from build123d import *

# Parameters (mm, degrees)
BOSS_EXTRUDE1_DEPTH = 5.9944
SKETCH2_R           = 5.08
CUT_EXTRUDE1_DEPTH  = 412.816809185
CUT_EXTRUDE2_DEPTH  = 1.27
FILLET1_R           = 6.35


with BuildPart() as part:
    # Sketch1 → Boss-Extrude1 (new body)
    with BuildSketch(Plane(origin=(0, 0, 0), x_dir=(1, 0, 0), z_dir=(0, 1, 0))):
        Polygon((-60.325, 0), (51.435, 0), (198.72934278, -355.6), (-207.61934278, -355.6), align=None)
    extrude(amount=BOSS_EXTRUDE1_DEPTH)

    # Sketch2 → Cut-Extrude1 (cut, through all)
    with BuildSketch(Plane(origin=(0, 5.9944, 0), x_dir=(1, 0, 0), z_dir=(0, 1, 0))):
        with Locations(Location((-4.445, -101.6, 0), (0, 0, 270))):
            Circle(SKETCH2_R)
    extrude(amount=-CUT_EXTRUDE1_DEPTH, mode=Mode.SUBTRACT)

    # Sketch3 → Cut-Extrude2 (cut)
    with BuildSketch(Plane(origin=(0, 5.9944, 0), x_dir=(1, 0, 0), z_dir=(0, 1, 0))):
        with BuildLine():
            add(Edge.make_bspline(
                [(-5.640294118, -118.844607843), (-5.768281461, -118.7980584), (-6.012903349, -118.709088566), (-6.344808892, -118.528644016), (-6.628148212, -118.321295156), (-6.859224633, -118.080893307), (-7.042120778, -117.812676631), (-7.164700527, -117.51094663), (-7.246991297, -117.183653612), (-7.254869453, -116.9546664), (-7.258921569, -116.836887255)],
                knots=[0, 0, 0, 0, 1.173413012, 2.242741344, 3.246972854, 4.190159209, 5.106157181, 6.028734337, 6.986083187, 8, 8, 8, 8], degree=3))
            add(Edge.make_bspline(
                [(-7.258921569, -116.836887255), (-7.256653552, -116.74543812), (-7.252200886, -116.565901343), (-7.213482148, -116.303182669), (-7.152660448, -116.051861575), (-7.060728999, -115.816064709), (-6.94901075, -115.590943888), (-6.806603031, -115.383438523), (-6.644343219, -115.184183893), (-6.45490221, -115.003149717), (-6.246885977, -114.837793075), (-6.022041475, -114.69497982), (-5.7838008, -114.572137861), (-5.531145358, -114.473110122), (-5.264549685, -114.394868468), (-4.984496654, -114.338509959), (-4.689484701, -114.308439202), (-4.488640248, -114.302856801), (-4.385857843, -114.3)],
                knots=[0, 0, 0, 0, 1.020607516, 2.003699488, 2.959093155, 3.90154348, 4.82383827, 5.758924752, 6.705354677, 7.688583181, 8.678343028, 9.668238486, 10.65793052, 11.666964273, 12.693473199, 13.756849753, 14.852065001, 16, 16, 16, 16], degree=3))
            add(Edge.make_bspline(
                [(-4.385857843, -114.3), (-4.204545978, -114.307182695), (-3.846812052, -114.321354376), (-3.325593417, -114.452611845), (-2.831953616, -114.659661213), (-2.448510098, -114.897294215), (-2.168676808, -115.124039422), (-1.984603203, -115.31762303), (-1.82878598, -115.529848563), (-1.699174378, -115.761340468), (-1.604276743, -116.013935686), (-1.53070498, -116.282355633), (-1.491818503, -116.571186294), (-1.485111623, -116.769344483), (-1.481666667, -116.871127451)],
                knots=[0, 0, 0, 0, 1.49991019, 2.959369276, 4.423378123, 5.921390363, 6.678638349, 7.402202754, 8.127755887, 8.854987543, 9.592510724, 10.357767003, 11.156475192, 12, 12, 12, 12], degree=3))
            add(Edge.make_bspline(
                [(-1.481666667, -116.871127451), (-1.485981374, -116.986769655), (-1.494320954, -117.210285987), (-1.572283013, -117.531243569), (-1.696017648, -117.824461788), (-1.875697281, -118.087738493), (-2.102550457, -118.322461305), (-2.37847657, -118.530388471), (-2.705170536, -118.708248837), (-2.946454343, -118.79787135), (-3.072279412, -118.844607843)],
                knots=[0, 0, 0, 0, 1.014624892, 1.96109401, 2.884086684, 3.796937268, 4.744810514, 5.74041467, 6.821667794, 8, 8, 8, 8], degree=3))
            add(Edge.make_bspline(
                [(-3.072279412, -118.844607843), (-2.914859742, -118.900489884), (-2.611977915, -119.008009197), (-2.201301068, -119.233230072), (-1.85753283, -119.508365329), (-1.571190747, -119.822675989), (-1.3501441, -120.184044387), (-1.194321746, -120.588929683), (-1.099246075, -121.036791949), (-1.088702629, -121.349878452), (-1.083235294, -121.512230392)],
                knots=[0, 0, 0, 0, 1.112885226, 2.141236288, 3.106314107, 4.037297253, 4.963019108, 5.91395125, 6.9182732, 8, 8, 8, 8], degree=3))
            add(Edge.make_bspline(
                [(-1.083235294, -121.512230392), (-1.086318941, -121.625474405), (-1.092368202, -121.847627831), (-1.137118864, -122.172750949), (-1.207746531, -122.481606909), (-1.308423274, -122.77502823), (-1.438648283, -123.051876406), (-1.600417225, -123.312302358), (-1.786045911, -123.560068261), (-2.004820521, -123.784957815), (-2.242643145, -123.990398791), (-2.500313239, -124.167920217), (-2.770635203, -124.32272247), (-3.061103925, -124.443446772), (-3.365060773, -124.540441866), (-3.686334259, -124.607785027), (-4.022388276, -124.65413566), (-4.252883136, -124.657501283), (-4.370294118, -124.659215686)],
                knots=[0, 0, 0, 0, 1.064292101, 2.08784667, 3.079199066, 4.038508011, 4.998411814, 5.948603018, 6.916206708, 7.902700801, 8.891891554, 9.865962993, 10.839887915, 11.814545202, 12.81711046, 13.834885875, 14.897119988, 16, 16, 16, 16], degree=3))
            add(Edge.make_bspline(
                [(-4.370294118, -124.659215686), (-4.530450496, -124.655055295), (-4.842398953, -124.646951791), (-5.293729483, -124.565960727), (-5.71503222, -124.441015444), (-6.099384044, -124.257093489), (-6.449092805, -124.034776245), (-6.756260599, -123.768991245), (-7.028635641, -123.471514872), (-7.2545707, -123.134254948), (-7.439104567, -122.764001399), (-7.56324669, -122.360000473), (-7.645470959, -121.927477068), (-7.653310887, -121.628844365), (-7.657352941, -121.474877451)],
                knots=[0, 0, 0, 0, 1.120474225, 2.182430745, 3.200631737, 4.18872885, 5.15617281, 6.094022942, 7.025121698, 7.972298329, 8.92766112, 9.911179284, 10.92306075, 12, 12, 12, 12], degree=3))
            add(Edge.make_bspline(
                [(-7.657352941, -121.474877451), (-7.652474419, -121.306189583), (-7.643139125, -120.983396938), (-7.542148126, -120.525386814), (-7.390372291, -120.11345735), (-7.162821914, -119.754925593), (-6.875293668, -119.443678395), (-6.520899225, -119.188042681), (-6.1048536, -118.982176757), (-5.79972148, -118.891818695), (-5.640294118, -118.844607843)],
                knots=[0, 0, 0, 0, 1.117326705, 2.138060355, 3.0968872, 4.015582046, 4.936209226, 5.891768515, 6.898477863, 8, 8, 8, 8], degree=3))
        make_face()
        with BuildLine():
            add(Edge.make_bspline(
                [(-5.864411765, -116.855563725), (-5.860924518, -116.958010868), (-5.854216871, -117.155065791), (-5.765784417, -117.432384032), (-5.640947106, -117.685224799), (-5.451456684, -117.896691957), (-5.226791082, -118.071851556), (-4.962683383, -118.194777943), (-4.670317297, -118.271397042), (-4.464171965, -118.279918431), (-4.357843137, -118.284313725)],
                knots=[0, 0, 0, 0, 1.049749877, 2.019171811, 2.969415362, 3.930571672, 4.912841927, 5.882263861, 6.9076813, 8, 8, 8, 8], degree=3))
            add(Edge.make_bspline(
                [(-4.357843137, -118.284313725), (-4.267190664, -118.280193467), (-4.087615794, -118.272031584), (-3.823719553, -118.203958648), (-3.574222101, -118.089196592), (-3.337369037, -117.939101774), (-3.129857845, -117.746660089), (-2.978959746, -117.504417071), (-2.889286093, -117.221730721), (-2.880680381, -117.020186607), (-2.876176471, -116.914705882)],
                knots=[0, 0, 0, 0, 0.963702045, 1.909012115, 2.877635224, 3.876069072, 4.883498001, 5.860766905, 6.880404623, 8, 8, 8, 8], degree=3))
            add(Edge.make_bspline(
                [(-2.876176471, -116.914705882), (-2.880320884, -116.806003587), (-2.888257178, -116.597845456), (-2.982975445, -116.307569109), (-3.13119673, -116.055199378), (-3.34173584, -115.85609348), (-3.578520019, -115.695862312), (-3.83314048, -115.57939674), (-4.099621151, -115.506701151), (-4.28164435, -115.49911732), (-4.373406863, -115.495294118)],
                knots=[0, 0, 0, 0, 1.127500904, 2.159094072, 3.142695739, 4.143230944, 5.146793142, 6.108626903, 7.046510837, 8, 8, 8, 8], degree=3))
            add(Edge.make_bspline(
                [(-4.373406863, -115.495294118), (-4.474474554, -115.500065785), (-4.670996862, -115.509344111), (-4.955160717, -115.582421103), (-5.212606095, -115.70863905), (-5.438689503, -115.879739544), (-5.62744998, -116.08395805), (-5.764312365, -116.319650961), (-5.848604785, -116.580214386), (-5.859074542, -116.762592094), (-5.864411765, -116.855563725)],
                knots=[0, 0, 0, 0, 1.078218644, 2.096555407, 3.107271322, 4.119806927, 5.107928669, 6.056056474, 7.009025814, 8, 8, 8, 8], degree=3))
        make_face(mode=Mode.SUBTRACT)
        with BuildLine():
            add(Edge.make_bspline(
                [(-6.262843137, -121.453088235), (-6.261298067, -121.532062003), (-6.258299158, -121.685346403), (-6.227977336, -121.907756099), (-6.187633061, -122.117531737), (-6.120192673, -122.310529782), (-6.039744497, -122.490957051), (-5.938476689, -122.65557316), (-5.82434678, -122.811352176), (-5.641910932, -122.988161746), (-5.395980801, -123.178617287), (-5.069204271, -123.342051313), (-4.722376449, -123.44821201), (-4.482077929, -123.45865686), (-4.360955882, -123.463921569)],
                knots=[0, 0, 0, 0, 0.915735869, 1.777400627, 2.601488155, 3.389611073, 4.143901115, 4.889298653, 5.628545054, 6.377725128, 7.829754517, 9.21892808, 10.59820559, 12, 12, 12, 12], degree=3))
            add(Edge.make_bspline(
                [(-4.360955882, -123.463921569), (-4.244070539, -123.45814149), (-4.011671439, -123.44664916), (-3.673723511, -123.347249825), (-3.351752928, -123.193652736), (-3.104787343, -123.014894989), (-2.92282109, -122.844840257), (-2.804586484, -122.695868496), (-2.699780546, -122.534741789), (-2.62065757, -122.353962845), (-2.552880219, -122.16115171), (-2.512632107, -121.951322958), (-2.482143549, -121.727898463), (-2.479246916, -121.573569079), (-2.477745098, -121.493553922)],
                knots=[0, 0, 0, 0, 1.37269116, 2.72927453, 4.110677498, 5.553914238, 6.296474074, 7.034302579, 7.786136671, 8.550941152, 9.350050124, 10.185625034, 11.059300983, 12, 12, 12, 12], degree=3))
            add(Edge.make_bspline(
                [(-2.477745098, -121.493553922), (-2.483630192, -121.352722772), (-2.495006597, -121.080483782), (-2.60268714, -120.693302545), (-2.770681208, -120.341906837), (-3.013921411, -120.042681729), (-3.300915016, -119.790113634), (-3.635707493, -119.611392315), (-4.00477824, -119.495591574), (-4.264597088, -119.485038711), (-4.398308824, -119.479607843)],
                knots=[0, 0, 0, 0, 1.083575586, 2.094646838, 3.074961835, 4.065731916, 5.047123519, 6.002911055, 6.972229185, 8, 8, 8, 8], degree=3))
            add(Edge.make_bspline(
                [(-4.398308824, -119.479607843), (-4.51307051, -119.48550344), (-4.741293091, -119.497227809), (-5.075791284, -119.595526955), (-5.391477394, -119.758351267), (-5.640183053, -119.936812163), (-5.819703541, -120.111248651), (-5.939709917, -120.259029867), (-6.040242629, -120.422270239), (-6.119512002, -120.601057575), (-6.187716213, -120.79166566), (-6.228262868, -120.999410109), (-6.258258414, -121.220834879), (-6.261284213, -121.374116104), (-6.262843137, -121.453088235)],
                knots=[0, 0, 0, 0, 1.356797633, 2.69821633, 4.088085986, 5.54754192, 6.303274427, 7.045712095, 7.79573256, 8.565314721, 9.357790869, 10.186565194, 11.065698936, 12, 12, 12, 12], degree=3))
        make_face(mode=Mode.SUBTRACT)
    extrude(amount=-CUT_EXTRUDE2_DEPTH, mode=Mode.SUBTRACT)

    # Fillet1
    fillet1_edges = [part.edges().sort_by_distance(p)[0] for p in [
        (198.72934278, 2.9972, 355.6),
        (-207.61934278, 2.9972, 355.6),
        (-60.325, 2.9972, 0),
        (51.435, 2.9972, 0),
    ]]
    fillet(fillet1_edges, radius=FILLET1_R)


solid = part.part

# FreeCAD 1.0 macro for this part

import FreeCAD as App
import Part
import Sketcher

V = App.Vector
Q = App.Units.Quantity


def edges_at(feature, points):
    """Names of the edges that pass closest to the given points."""
    edges = feature.Shape.Edges
    near = lambda p: min(range(len(edges)), key=lambda i: edges[i].distToShape(Part.Vertex(*p))[0])
    return sorted({f"Edge{near(p) + 1}" for p in points})


def add_polygon(sketch, points):
    """Adds a closed chain of lines whose ends are joined by coincident constraints."""
    first, n = sketch.GeometryCount, len(points)
    for a, b in zip(points, points[1:] + points[:1]):
        sketch.addGeometry(Part.LineSegment(App.Vector(*a, 0), App.Vector(*b, 0)), False)
    for i in range(n):
        sketch.addConstraint(Sketcher.Constraint("Coincident", first + i, 2, first + (i + 1) % n, 1))

doc = App.newDocument("Part")
params = doc.addObject("Spreadsheet::Sheet", "Params")
for row, (alias, value) in enumerate([
    ("sketch1_width", "4.4 in"),
    ("pad1_length", "0.236 in"),
    ("sketch2_diameter", "0.4 in"),
    ("pocket2_length", "0.05 in"),
    ("fillet_radius", "0.25 in"),
], start=1):
    params.set(f"A{row}", alias)
    params.set(f"B{row}", "=" + value)
    params.setAlias(f"B{row}", alias)

body = doc.addObject("PartDesign::Body", "Body")

# Sketch on XZ plane
sketch1 = body.newObject("Sketcher::SketchObject", "Sketch")
sketch1.AttachmentSupport = (doc.getObject("XZ_Plane"), [""])
sketch1.MapMode = "FlatFace"
add_polygon(sketch1, [(51, 0), (-60, 0), (-208, 356), (199, 356)])  # lines 0-3
sketch1.addConstraint(Sketcher.Constraint("Horizontal", 0))
sketch1.addConstraint(Sketcher.Constraint("Horizontal", 2))
sketch1.addConstraint(Sketcher.Constraint("PointOnObject", 0, 2, -1))
sketch1.addConstraint(Sketcher.Constraint("Equal", 1, 3))
sketch1.addConstraint(Sketcher.Constraint("DistanceX", 0, 2, 0, 1, Q("4.4 in")))
sketch1.addConstraint(Sketcher.Constraint("DistanceY", -1, 1, 1, 2, Q("14 in")))
sketch1.addConstraint(Sketcher.Constraint("Angle", 1, Q("112.5 deg")))
sketch1.addConstraint(Sketcher.Constraint("DistanceX", 0, 2, -1, 1, Q("2.375 in")))
sketch1.setExpression("Constraints[8]", "Params.sketch1_width")
pad1 = body.newObject("PartDesign::Pad", "Pad")
pad1.Profile = sketch1
pad1.setExpression("Length", "Params.pad1_length")
pad1.Reversed = True

# Sketch on XZ plane
sketch2 = body.newObject("Sketcher::SketchObject", "Sketch001")
sketch2.AttachmentSupport = (doc.getObject("XZ_Plane"), [""])
sketch2.MapMode = "FlatFace"
sketch2.AttachmentOffset = App.Placement(V(0, 0, -0.236 * 25.4), App.Rotation())
sketch2.addGeometry(Part.Circle(V(-4, 102, 0), V(0, 0, 1), 5), False)
sketch2.addConstraint(Sketcher.Constraint("Diameter", 0, Q("0.4 in")))
sketch2.addConstraint(Sketcher.Constraint("DistanceY", -1, 1, 0, 3, Q("4 in")))
sketch2.addConstraint(Sketcher.Constraint("DistanceX", 0, 3, -1, 1, Q("0.175 in")))
sketch2.setExpression("Constraints[0]", "Params.sketch2_diameter")
pocket1 = body.newObject("PartDesign::Pocket", "Pocket")
pocket1.Profile = sketch2
pocket1.Type = "ThroughAll"
pocket1.Reversed = True

# Sketch on XZ plane
sketch3 = body.newObject("Sketcher::SketchObject", "Sketch002")
sketch3.AttachmentSupport = (doc.getObject("XZ_Plane"), [""])
sketch3.MapMode = "FlatFace"
sketch3.AttachmentOffset = App.Placement(V(0, 0, -0.236 * 25.4), App.Rotation())
sketch3.addGeometry(Part.BSplineCurve([V(-5.640294, 118.844608, 0), V(-5.768281, 118.798058, 0), V(-6.012903, 118.709089, 0), V(-6.344809, 118.528644, 0), V(-6.628148, 118.321295, 0), V(-6.859225, 118.080893, 0), V(-7.042121, 117.812677, 0), V(-7.164701, 117.510947, 0), V(-7.246991, 117.183654, 0), V(-7.254869, 116.954666, 0), V(-7.258922, 116.836887, 0)], [4, 1, 1, 1, 1, 1, 1, 1, 4], [0, 1.173413012, 2.242741344, 3.246972854, 4.190159209, 5.106157181, 6.028734337, 6.986083187, 8], False, 3, [1, 1, 1, 1, 1, 1, 1, 1, 1, 1, 1], False), False)
sketch3.addGeometry(Part.BSplineCurve([V(-7.657353, 121.474877, 0), V(-7.652474, 121.30619, 0), V(-7.643139, 120.983397, 0), V(-7.542148, 120.525387, 0), V(-7.390372, 120.113457, 0), V(-7.162822, 119.754926, 0), V(-6.875294, 119.443678, 0), V(-6.520899, 119.188043, 0), V(-6.104854, 118.982177, 0), V(-5.799721, 118.891819, 0), V(-5.640294, 118.844608, 0)], [4, 1, 1, 1, 1, 1, 1, 1, 4], [0, 1.117326705, 2.138060355, 3.0968872, 4.015582046, 4.936209226, 5.891768515, 6.898477863, 8], False, 3, [1, 1, 1, 1, 1, 1, 1, 1, 1, 1, 1], False), False)
sketch3.addGeometry(Part.BSplineCurve([V(-4.370294, 124.659216, 0), V(-4.53045, 124.655055, 0), V(-4.842399, 124.646952, 0), V(-5.293729, 124.565961, 0), V(-5.715032, 124.441015, 0), V(-6.099384, 124.257093, 0), V(-6.449093, 124.034776, 0), V(-6.756261, 123.768991, 0), V(-7.028636, 123.471515, 0), V(-7.254571, 123.134255, 0), V(-7.439105, 122.764001, 0), V(-7.563247, 122.36, 0), V(-7.645471, 121.927477, 0), V(-7.653311, 121.628844, 0), V(-7.657353, 121.474877, 0)], [4, 1, 1, 1, 1, 1, 1, 1, 1, 1, 1, 1, 4], [0, 1.120474225, 2.182430745, 3.200631737, 4.18872885, 5.15617281, 6.094022942, 7.025121698, 7.972298329, 8.92766112, 9.911179284, 10.92306075, 12], False, 3, [1, 1, 1, 1, 1, 1, 1, 1, 1, 1, 1, 1, 1, 1, 1], False), False)
sketch3.addGeometry(Part.BSplineCurve([V(-1.083235, 121.51223, 0), V(-1.086319, 121.625474, 0), V(-1.092368, 121.847628, 0), V(-1.137119, 122.172751, 0), V(-1.207747, 122.481607, 0), V(-1.308423, 122.775028, 0), V(-1.438648, 123.051876, 0), V(-1.600417, 123.312302, 0), V(-1.786046, 123.560068, 0), V(-2.004821, 123.784958, 0), V(-2.242643, 123.990399, 0), V(-2.500313, 124.16792, 0), V(-2.770635, 124.322722, 0), V(-3.061104, 124.443447, 0), V(-3.365061, 124.540442, 0), V(-3.686334, 124.607785, 0), V(-4.022388, 124.654136, 0), V(-4.252883, 124.657501, 0), V(-4.370294, 124.659216, 0)], [4, 1, 1, 1, 1, 1, 1, 1, 1, 1, 1, 1, 1, 1, 1, 1, 4], [0, 1.064292101, 2.08784667, 3.079199066, 4.038508011, 4.998411814, 5.948603018, 6.916206708, 7.902700801, 8.891891554, 9.865962993, 10.839887915, 11.814545202, 12.81711046, 13.834885875, 14.897119988, 16], False, 3, [1, 1, 1, 1, 1, 1, 1, 1, 1, 1, 1, 1, 1, 1, 1, 1, 1, 1, 1], False), False)
sketch3.addGeometry(Part.BSplineCurve([V(-3.072279, 118.844608, 0), V(-2.91486, 118.90049, 0), V(-2.611978, 119.008009, 0), V(-2.201301, 119.23323, 0), V(-1.857533, 119.508365, 0), V(-1.571191, 119.822676, 0), V(-1.350144, 120.184044, 0), V(-1.194322, 120.58893, 0), V(-1.099246, 121.036792, 0), V(-1.088703, 121.349878, 0), V(-1.083235, 121.51223, 0)], [4, 1, 1, 1, 1, 1, 1, 1, 4], [0, 1.112885226, 2.141236288, 3.106314107, 4.037297253, 4.963019108, 5.91395125, 6.9182732, 8], False, 3, [1, 1, 1, 1, 1, 1, 1, 1, 1, 1, 1], False), False)
sketch3.addGeometry(Part.BSplineCurve([V(-1.481667, 116.871127, 0), V(-1.485981, 116.98677, 0), V(-1.494321, 117.210286, 0), V(-1.572283, 117.531244, 0), V(-1.696018, 117.824462, 0), V(-1.875697, 118.087738, 0), V(-2.10255, 118.322461, 0), V(-2.378477, 118.530388, 0), V(-2.705171, 118.708249, 0), V(-2.946454, 118.797871, 0), V(-3.072279, 118.844608, 0)], [4, 1, 1, 1, 1, 1, 1, 1, 4], [0, 1.014624892, 1.96109401, 2.884086684, 3.796937268, 4.744810514, 5.74041467, 6.821667794, 8], False, 3, [1, 1, 1, 1, 1, 1, 1, 1, 1, 1, 1], False), False)
sketch3.addGeometry(Part.BSplineCurve([V(-4.385858, 114.3, 0), V(-4.204546, 114.307183, 0), V(-3.846812, 114.321354, 0), V(-3.325593, 114.452612, 0), V(-2.831954, 114.659661, 0), V(-2.44851, 114.897294, 0), V(-2.168677, 115.124039, 0), V(-1.984603, 115.317623, 0), V(-1.828786, 115.529849, 0), V(-1.699174, 115.76134, 0), V(-1.604277, 116.013936, 0), V(-1.530705, 116.282356, 0), V(-1.491819, 116.571186, 0), V(-1.485112, 116.769344, 0), V(-1.481667, 116.871127, 0)], [4, 1, 1, 1, 1, 1, 1, 1, 1, 1, 1, 1, 4], [0, 1.49991019, 2.959369276, 4.423378123, 5.921390363, 6.678638349, 7.402202754, 8.127755887, 8.854987543, 9.592510724, 10.357767003, 11.156475192, 12], False, 3, [1, 1, 1, 1, 1, 1, 1, 1, 1, 1, 1, 1, 1, 1, 1], False), False)
sketch3.addGeometry(Part.BSplineCurve([V(-7.258922, 116.836887, 0), V(-7.256654, 116.745438, 0), V(-7.252201, 116.565901, 0), V(-7.213482, 116.303183, 0), V(-7.15266, 116.051862, 0), V(-7.060729, 115.816065, 0), V(-6.949011, 115.590944, 0), V(-6.806603, 115.383439, 0), V(-6.644343, 115.184184, 0), V(-6.454902, 115.00315, 0), V(-6.246886, 114.837793, 0), V(-6.022041, 114.69498, 0), V(-5.783801, 114.572138, 0), V(-5.531145, 114.47311, 0), V(-5.26455, 114.394868, 0), V(-4.984497, 114.33851, 0), V(-4.689485, 114.308439, 0), V(-4.48864, 114.302857, 0), V(-4.385858, 114.3, 0)], [4, 1, 1, 1, 1, 1, 1, 1, 1, 1, 1, 1, 1, 1, 1, 1, 4], [0, 1.020607516, 2.003699488, 2.959093155, 3.90154348, 4.82383827, 5.758924752, 6.705354677, 7.688583181, 8.678343028, 9.668238486, 10.65793052, 11.666964273, 12.693473199, 13.756849753, 14.852065001, 16], False, 3, [1, 1, 1, 1, 1, 1, 1, 1, 1, 1, 1, 1, 1, 1, 1, 1, 1, 1, 1], False), False)
sketch3.addGeometry(Part.BSplineCurve([V(-4.398309, 119.479608, 0), V(-4.513071, 119.485503, 0), V(-4.741293, 119.497228, 0), V(-5.075791, 119.595527, 0), V(-5.391477, 119.758351, 0), V(-5.640183, 119.936812, 0), V(-5.819704, 120.111249, 0), V(-5.93971, 120.25903, 0), V(-6.040243, 120.42227, 0), V(-6.119512, 120.601058, 0), V(-6.187716, 120.791666, 0), V(-6.228263, 120.99941, 0), V(-6.258258, 121.220835, 0), V(-6.261284, 121.374116, 0), V(-6.262843, 121.453088, 0)], [4, 1, 1, 1, 1, 1, 1, 1, 1, 1, 1, 1, 4], [0, 1.356797633, 2.69821633, 4.088085986, 5.54754192, 6.303274427, 7.045712095, 7.79573256, 8.565314721, 9.357790869, 10.186565194, 11.065698936, 12], False, 3, [1, 1, 1, 1, 1, 1, 1, 1, 1, 1, 1, 1, 1, 1, 1], False), False)
sketch3.addGeometry(Part.BSplineCurve([V(-2.477745, 121.493554, 0), V(-2.48363, 121.352723, 0), V(-2.495007, 121.080484, 0), V(-2.602687, 120.693303, 0), V(-2.770681, 120.341907, 0), V(-3.013921, 120.042682, 0), V(-3.300915, 119.790114, 0), V(-3.635707, 119.611392, 0), V(-4.004778, 119.495592, 0), V(-4.264597, 119.485039, 0), V(-4.398309, 119.479608, 0)], [4, 1, 1, 1, 1, 1, 1, 1, 4], [0, 1.083575586, 2.094646838, 3.074961835, 4.065731916, 5.047123519, 6.002911055, 6.972229185, 8], False, 3, [1, 1, 1, 1, 1, 1, 1, 1, 1, 1, 1], False), False)
sketch3.addGeometry(Part.BSplineCurve([V(-4.360956, 123.463922, 0), V(-4.244071, 123.458141, 0), V(-4.011671, 123.446649, 0), V(-3.673724, 123.34725, 0), V(-3.351753, 123.193653, 0), V(-3.104787, 123.014895, 0), V(-2.922821, 122.84484, 0), V(-2.804586, 122.695868, 0), V(-2.699781, 122.534742, 0), V(-2.620658, 122.353963, 0), V(-2.55288, 122.161152, 0), V(-2.512632, 121.951323, 0), V(-2.482144, 121.727898, 0), V(-2.479247, 121.573569, 0), V(-2.477745, 121.493554, 0)], [4, 1, 1, 1, 1, 1, 1, 1, 1, 1, 1, 1, 4], [0, 1.37269116, 2.72927453, 4.110677498, 5.553914238, 6.296474074, 7.034302579, 7.786136671, 8.550941152, 9.350050124, 10.185625034, 11.059300983, 12], False, 3, [1, 1, 1, 1, 1, 1, 1, 1, 1, 1, 1, 1, 1, 1, 1], False), False)
sketch3.addGeometry(Part.BSplineCurve([V(-6.262843, 121.453088, 0), V(-6.261298, 121.532062, 0), V(-6.258299, 121.685346, 0), V(-6.227977, 121.907756, 0), V(-6.187633, 122.117532, 0), V(-6.120193, 122.31053, 0), V(-6.039744, 122.490957, 0), V(-5.938477, 122.655573, 0), V(-5.824347, 122.811352, 0), V(-5.641911, 122.988162, 0), V(-5.395981, 123.178617, 0), V(-5.069204, 123.342051, 0), V(-4.722376, 123.448212, 0), V(-4.482078, 123.458657, 0), V(-4.360956, 123.463922, 0)], [4, 1, 1, 1, 1, 1, 1, 1, 1, 1, 1, 1, 4], [0, 0.915735869, 1.777400627, 2.601488155, 3.389611073, 4.143901115, 4.889298653, 5.628545054, 6.377725128, 7.829754517, 9.21892808, 10.59820559, 12], False, 3, [1, 1, 1, 1, 1, 1, 1, 1, 1, 1, 1, 1, 1, 1, 1], False), False)
sketch3.addGeometry(Part.BSplineCurve([V(-4.373407, 115.495294, 0), V(-4.474475, 115.500066, 0), V(-4.670997, 115.509344, 0), V(-4.955161, 115.582421, 0), V(-5.212606, 115.708639, 0), V(-5.43869, 115.87974, 0), V(-5.62745, 116.083958, 0), V(-5.764312, 116.319651, 0), V(-5.848605, 116.580214, 0), V(-5.859075, 116.762592, 0), V(-5.864412, 116.855564, 0)], [4, 1, 1, 1, 1, 1, 1, 1, 4], [0, 1.078218644, 2.096555407, 3.107271322, 4.119806927, 5.107928669, 6.056056474, 7.009025814, 8], False, 3, [1, 1, 1, 1, 1, 1, 1, 1, 1, 1, 1], False), False)
sketch3.addGeometry(Part.BSplineCurve([V(-2.876176, 116.914706, 0), V(-2.880321, 116.806004, 0), V(-2.888257, 116.597845, 0), V(-2.982975, 116.307569, 0), V(-3.131197, 116.055199, 0), V(-3.341736, 115.856093, 0), V(-3.57852, 115.695862, 0), V(-3.83314, 115.579397, 0), V(-4.099621, 115.506701, 0), V(-4.281644, 115.499117, 0), V(-4.373407, 115.495294, 0)], [4, 1, 1, 1, 1, 1, 1, 1, 4], [0, 1.127500904, 2.159094072, 3.142695739, 4.143230944, 5.146793142, 6.108626903, 7.046510837, 8], False, 3, [1, 1, 1, 1, 1, 1, 1, 1, 1, 1, 1], False), False)
sketch3.addGeometry(Part.BSplineCurve([V(-4.357843, 118.284314, 0), V(-4.267191, 118.280193, 0), V(-4.087616, 118.272032, 0), V(-3.82372, 118.203959, 0), V(-3.574222, 118.089197, 0), V(-3.337369, 117.939102, 0), V(-3.129858, 117.74666, 0), V(-2.97896, 117.504417, 0), V(-2.889286, 117.221731, 0), V(-2.88068, 117.020187, 0), V(-2.876176, 116.914706, 0)], [4, 1, 1, 1, 1, 1, 1, 1, 4], [0, 0.963702045, 1.909012115, 2.877635224, 3.876069072, 4.883498001, 5.860766905, 6.880404623, 8], False, 3, [1, 1, 1, 1, 1, 1, 1, 1, 1, 1, 1], False), False)
sketch3.addGeometry(Part.BSplineCurve([V(-5.864412, 116.855564, 0), V(-5.860925, 116.958011, 0), V(-5.854217, 117.155066, 0), V(-5.765784, 117.432384, 0), V(-5.640947, 117.685225, 0), V(-5.451457, 117.896692, 0), V(-5.226791, 118.071852, 0), V(-4.962683, 118.194778, 0), V(-4.670317, 118.271397, 0), V(-4.464172, 118.279918, 0), V(-4.357843, 118.284314, 0)], [4, 1, 1, 1, 1, 1, 1, 1, 4], [0, 1.049749877, 2.019171811, 2.969415362, 3.930571672, 4.912841927, 5.882263861, 6.9076813, 8], False, 3, [1, 1, 1, 1, 1, 1, 1, 1, 1, 1, 1], False), False)
sketch3.addConstraint(Sketcher.Constraint("Block", 0))
sketch3.addConstraint(Sketcher.Constraint("Block", 1))
sketch3.addConstraint(Sketcher.Constraint("Block", 2))
sketch3.addConstraint(Sketcher.Constraint("Block", 3))
sketch3.addConstraint(Sketcher.Constraint("Block", 4))
sketch3.addConstraint(Sketcher.Constraint("Block", 5))
sketch3.addConstraint(Sketcher.Constraint("Block", 6))
sketch3.addConstraint(Sketcher.Constraint("Block", 7))
sketch3.addConstraint(Sketcher.Constraint("Block", 8))
sketch3.addConstraint(Sketcher.Constraint("Block", 9))
sketch3.addConstraint(Sketcher.Constraint("Block", 10))
sketch3.addConstraint(Sketcher.Constraint("Block", 11))
sketch3.addConstraint(Sketcher.Constraint("Block", 12))
sketch3.addConstraint(Sketcher.Constraint("Block", 13))
sketch3.addConstraint(Sketcher.Constraint("Block", 14))
sketch3.addConstraint(Sketcher.Constraint("Block", 15))
pocket2 = body.newObject("PartDesign::Pocket", "Pocket001")
pocket2.Profile = sketch3
pocket2.setExpression("Length", "Params.pocket2_length")
pocket2.Reversed = True
doc.recompute()

fillet = body.newObject("PartDesign::Fillet", "Fillet")
fillet.Base = (pocket2, edges_at(pocket2, [
    (198.729, 2.997, 355.6),
    (-207.619, 2.997, 355.6),
    (-60.325, 2.997, 0),
    (51.435, 2.997, 0),
]))
fillet.setExpression("Radius", "Params.fillet_radius")

doc.recompute()
